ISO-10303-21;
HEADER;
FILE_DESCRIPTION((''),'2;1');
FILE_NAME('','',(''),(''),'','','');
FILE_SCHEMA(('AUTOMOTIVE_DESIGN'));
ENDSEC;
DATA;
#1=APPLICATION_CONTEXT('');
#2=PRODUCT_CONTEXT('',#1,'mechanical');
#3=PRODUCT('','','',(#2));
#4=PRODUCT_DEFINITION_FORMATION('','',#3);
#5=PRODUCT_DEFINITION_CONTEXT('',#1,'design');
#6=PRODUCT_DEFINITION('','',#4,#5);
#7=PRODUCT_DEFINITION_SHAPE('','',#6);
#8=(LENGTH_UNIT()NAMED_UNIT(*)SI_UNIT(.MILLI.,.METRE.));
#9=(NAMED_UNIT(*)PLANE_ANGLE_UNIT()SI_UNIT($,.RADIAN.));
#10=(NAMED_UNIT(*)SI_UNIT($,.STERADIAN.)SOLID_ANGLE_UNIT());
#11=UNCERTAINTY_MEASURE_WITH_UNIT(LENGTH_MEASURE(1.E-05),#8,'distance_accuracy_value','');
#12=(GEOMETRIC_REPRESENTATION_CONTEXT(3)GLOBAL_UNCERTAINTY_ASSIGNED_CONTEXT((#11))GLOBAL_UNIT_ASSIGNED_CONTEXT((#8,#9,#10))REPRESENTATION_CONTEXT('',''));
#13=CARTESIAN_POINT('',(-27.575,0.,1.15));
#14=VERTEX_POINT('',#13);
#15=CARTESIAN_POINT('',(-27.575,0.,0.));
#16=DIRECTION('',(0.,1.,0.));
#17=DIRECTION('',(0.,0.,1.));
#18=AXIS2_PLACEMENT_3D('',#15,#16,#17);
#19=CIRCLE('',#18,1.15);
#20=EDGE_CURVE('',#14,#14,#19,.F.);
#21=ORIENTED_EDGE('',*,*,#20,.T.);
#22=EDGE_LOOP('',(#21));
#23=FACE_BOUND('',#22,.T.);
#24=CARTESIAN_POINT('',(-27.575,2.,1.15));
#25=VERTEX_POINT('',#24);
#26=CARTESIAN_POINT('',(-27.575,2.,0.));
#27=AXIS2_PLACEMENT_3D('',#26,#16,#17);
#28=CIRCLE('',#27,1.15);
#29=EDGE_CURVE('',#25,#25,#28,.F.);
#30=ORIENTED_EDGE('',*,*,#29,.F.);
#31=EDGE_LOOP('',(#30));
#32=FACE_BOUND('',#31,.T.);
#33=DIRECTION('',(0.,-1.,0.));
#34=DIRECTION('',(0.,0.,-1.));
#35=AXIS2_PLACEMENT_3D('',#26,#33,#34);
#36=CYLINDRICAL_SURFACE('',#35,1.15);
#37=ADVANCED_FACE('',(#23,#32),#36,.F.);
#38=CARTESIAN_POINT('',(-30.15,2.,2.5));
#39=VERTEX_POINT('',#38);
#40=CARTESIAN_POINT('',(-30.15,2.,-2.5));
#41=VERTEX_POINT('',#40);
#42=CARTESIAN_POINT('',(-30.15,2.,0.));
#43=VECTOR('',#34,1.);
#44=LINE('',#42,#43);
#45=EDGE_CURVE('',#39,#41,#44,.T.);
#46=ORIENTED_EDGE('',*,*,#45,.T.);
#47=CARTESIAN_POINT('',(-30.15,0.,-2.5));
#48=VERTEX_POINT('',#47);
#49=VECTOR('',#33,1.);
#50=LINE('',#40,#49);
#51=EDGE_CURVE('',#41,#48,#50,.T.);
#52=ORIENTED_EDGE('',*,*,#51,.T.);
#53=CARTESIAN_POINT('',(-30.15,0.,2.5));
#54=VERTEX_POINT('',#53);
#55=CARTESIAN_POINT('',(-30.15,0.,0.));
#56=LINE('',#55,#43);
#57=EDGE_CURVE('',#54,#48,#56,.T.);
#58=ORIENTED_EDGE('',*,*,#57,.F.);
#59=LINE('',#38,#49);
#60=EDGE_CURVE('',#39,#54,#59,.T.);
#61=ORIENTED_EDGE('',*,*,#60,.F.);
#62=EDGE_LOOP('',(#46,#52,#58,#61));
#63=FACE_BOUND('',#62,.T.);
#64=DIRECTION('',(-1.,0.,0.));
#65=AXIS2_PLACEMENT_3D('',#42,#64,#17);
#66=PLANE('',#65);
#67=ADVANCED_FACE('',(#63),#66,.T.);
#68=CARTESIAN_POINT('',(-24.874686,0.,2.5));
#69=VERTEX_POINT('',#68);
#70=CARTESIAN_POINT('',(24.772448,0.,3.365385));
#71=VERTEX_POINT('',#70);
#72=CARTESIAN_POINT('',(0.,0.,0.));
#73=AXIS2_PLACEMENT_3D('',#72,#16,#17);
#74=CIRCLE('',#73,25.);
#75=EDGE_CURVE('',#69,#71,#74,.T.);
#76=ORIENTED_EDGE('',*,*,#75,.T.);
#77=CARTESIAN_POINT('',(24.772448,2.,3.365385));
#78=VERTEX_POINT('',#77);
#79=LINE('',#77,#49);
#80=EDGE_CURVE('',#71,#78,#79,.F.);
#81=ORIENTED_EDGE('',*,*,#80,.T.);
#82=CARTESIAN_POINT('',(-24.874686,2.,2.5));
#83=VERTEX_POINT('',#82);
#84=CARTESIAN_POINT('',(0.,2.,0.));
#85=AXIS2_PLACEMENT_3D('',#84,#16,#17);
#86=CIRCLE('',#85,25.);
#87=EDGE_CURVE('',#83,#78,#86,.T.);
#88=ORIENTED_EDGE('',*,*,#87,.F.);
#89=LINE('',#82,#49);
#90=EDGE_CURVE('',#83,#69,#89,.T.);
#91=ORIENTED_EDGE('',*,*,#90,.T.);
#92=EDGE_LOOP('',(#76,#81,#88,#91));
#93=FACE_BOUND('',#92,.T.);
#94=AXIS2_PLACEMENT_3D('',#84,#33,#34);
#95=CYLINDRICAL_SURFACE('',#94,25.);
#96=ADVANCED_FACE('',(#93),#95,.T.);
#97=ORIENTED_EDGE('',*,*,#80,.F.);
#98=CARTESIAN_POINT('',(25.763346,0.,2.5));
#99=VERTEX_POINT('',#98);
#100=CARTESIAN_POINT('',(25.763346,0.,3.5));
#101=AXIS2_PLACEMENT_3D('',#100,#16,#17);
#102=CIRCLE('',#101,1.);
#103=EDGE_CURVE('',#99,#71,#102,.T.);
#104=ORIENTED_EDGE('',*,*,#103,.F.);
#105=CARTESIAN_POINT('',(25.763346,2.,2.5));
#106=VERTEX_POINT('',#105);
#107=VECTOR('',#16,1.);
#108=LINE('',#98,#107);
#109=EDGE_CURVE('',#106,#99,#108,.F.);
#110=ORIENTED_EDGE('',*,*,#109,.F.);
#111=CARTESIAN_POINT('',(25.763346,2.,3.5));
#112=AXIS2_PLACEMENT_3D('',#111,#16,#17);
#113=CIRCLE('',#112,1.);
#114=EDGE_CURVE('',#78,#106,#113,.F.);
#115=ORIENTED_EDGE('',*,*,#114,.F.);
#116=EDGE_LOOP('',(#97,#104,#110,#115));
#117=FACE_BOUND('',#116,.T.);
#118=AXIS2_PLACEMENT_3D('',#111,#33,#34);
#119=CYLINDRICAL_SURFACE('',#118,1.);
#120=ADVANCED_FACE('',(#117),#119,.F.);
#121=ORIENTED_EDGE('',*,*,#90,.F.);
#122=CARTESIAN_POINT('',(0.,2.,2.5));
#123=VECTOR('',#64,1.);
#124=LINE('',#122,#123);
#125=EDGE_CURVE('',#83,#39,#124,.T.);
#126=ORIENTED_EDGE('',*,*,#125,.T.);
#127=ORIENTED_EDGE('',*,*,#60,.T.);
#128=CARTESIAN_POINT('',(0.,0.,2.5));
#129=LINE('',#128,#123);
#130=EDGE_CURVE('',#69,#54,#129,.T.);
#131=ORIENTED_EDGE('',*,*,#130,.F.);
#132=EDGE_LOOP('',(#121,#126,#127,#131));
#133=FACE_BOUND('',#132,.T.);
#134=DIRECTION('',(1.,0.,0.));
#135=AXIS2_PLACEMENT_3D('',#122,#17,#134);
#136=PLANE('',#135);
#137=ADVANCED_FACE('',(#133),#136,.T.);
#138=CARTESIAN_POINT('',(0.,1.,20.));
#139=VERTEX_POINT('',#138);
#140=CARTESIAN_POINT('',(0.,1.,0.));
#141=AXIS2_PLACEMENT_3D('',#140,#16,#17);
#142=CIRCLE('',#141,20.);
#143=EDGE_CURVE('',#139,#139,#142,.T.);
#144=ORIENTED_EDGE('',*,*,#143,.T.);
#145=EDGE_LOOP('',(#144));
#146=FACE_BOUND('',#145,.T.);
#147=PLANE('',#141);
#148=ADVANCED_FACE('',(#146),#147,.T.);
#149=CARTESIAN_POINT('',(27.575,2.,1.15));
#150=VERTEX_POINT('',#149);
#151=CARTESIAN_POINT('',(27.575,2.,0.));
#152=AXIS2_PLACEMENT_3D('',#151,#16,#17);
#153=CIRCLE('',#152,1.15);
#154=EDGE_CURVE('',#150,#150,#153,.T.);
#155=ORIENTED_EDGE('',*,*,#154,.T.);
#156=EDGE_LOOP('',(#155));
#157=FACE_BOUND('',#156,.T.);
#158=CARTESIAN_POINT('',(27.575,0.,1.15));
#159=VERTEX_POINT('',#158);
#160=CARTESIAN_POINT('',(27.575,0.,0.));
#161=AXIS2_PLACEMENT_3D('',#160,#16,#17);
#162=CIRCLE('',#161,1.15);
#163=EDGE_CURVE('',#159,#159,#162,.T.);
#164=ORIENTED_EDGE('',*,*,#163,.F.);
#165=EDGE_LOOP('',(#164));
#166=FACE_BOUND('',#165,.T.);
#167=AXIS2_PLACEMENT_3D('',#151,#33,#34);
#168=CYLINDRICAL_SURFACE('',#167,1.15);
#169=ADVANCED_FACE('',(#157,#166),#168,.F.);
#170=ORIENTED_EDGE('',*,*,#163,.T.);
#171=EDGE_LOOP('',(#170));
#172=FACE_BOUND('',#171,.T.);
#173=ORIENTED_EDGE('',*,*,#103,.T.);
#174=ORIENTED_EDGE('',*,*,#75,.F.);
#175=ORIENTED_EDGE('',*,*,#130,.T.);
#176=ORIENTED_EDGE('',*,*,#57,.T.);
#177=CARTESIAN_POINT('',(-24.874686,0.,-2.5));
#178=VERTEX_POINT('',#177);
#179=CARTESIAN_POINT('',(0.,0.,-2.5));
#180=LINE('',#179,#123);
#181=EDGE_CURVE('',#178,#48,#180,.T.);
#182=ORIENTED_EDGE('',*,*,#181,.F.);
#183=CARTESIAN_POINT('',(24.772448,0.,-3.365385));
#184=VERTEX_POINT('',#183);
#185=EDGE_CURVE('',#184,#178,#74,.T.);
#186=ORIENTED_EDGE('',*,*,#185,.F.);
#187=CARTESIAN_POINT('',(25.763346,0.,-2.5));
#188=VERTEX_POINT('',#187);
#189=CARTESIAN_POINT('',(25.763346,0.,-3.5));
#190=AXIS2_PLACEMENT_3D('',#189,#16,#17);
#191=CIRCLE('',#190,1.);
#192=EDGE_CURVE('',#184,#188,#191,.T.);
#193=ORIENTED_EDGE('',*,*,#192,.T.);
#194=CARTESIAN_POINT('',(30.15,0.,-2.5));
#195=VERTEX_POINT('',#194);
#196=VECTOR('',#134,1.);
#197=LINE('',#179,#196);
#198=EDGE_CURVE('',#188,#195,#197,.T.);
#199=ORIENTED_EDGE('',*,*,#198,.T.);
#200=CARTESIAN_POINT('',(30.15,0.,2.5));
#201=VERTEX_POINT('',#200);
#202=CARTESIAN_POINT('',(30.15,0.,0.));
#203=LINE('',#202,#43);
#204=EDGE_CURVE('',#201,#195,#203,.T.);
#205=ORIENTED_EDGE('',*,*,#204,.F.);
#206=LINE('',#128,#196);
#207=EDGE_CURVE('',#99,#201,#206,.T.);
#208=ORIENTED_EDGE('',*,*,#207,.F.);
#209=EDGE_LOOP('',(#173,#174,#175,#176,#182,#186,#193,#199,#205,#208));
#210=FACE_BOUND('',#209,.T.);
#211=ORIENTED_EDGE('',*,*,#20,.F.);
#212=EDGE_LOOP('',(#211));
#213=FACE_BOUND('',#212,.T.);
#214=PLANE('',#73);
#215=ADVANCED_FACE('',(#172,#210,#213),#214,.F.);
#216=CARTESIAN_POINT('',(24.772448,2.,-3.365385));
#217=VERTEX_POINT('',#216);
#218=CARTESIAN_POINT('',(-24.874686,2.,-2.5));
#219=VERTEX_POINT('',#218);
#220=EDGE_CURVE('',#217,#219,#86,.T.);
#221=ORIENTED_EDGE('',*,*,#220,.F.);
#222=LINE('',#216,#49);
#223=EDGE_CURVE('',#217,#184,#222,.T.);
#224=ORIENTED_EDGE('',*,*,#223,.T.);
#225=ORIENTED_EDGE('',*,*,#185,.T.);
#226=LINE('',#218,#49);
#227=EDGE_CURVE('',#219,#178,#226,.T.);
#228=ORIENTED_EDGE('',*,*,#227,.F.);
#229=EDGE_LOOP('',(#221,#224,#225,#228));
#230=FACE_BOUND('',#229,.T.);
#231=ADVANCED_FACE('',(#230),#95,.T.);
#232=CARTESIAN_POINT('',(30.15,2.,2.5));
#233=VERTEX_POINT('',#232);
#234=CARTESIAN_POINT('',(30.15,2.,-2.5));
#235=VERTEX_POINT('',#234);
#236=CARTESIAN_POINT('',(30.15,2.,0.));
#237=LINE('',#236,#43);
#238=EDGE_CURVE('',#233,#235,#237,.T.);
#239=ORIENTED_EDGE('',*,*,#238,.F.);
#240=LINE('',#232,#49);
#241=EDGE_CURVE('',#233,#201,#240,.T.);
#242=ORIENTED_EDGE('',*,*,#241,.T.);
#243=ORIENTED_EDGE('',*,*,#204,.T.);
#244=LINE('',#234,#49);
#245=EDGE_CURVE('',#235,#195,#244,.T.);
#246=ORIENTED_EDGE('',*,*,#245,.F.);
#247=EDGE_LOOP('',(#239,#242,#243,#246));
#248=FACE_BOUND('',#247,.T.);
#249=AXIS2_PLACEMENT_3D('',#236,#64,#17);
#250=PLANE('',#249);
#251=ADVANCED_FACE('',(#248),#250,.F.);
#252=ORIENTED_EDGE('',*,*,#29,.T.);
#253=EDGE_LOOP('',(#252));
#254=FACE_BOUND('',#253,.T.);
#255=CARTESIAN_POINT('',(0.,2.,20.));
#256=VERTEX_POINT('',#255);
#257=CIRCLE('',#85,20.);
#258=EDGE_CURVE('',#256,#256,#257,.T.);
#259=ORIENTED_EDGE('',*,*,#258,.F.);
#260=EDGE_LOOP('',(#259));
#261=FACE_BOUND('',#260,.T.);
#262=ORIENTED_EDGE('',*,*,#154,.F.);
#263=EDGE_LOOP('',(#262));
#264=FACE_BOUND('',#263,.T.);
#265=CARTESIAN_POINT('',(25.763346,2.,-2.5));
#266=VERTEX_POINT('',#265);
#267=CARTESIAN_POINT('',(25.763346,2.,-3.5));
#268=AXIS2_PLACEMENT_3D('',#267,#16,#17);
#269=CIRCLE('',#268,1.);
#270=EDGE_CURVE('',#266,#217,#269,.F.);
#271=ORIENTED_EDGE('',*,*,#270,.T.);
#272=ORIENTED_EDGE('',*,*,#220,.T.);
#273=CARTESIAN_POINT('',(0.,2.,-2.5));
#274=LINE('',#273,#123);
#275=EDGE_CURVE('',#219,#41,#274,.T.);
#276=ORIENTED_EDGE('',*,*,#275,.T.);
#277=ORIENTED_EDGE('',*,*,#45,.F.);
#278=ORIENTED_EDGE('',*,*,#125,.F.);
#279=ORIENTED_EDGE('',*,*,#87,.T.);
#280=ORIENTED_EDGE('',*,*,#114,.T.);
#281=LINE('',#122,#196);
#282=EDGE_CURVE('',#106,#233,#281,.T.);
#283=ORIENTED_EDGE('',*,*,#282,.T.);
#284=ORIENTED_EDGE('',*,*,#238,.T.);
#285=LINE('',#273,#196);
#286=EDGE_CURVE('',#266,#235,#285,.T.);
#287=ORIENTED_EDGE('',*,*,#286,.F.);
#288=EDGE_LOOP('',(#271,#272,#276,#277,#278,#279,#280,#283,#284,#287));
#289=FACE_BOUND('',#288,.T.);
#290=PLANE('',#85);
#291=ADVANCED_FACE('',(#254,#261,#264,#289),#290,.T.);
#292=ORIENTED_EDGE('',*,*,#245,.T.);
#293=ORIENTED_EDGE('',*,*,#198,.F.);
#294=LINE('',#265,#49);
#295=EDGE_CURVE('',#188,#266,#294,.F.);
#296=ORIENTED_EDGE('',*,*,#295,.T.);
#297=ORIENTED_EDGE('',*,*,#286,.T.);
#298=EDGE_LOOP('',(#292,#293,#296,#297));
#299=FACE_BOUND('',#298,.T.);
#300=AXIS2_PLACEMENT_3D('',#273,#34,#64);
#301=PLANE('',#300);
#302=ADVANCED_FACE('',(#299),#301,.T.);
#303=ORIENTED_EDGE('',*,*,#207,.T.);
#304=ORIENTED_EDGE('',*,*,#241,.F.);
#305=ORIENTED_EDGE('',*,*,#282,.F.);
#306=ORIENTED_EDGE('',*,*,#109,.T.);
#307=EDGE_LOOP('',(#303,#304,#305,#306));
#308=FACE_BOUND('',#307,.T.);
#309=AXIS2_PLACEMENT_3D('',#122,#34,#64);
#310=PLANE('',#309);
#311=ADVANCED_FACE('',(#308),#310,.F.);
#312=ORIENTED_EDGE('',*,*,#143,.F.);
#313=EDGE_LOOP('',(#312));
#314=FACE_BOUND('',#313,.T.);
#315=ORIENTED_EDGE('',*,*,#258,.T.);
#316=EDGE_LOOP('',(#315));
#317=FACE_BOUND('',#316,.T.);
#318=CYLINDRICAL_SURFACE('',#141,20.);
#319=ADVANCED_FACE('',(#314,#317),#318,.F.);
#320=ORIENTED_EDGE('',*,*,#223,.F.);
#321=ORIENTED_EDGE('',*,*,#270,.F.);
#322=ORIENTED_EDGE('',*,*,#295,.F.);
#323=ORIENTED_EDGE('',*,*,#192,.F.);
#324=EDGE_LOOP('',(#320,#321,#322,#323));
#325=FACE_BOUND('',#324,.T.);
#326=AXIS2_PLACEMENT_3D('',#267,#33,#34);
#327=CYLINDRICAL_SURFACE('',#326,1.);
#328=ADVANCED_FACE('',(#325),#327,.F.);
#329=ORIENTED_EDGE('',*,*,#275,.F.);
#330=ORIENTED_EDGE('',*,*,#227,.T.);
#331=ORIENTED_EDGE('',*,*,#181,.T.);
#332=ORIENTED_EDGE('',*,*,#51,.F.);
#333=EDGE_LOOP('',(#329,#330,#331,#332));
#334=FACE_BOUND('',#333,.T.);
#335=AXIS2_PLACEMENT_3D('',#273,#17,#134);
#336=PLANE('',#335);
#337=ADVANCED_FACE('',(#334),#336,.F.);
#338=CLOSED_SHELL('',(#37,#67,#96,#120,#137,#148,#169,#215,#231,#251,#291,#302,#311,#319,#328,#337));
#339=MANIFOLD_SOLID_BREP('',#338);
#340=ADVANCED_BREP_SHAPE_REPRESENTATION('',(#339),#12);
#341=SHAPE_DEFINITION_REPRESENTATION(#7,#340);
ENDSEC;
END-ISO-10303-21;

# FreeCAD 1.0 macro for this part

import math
import FreeCAD as App
import Part
import Sketcher
from FreeCAD import Vector
Q = App.Units.Quantity


def edges_at(feature, points):
    """Names of the edges that pass closest to the given points."""
    edges = feature.Shape.Edges
    near = lambda p: min(range(len(edges)), key=lambda i: edges[i].distToShape(Part.Vertex(*p))[0])
    return sorted({f"Edge{near(p) + 1}" for p in points})

doc = App.newDocument("Part")
params = doc.addObject("Spreadsheet::Sheet", "Params")
for row, (alias, value) in enumerate([
    ("sketch1_radius", "25 mm"),
    ("sketch1_diameter", "2.3 mm"),
    ("sketch1_height", "5 mm"),
    ("pad1_length", "2 mm"),
    ("fillet_radius", "1 mm"),
    ("sketch2_diameter", "40 mm"),
    ("pocket1_length", "1 mm"),
], start=1):
    params.set(f"A{row}", alias)
    params.set(f"B{row}", "=" + value)
    params.setAlias(f"B{row}", alias)

body = doc.addObject("PartDesign::Body", "Body")

sketch1 = body.newObject("Sketcher::SketchObject", "Sketch")
sketch1.AttachmentSupport = (doc.getObject("XZ_Plane"), [""])
sketch1.MapMode = "FlatFace"
sketch1.addGeometry(Part.LineSegment(Vector(24.9, 2.5, 0), Vector(30.1, 2.5, 0)), False)
sketch1.addGeometry(Part.LineSegment(Vector(30.1, 2.5, 0), Vector(30.1, -2.5, 0)), False)
sketch1.addGeometry(Part.LineSegment(Vector(30.1, -2.5, 0), Vector(24.9, -2.5, 0)), False)
sketch1.addGeometry(Part.ArcOfCircle(Part.Circle(Vector(0, 0, 0), Vector(0, 0, 1), 25), math.radians(-174), math.radians(-6)), False)
sketch1.addGeometry(Part.LineSegment(Vector(-24.9, -2.5, 0), Vector(-30.1, -2.5, 0)), False)
sketch1.addGeometry(Part.LineSegment(Vector(-30.1, -2.5, 0), Vector(-30.1, 2.5, 0)), False)
sketch1.addGeometry(Part.LineSegment(Vector(-30.1, 2.5, 0), Vector(-24.9, 2.5, 0)), False)
sketch1.addGeometry(Part.ArcOfCircle(Part.Circle(Vector(0, 0, 0), Vector(0, 0, 1), 25), math.radians(6), math.radians(174)), False)
sketch1.addGeometry(Part.Circle(Vector(27.6, 0, 0), Vector(0, 0, 1), 1.1), False)
sketch1.addGeometry(Part.Circle(Vector(-27.6, 0, 0), Vector(0, 0, 1), 1.1), False)
sketch1.addConstraint(Sketcher.Constraint("Coincident", 0, 2, 1, 1))
sketch1.addConstraint(Sketcher.Constraint("Coincident", 1, 2, 2, 1))
sketch1.addConstraint(Sketcher.Constraint("Coincident", 2, 2, 3, 2))
sketch1.addConstraint(Sketcher.Constraint("Coincident", 3, 1, 4, 1))
sketch1.addConstraint(Sketcher.Constraint("Coincident", 4, 2, 5, 1))
sketch1.addConstraint(Sketcher.Constraint("Coincident", 5, 2, 6, 1))
sketch1.addConstraint(Sketcher.Constraint("Coincident", 6, 2, 7, 2))
sketch1.addConstraint(Sketcher.Constraint("Coincident", 7, 1, 0, 1))
sketch1.addConstraint(Sketcher.Constraint("Horizontal", 0))
sketch1.addConstraint(Sketcher.Constraint("Vertical", 1))
sketch1.addConstraint(Sketcher.Constraint("Horizontal", 2))
sketch1.addConstraint(Sketcher.Constraint("Horizontal", 4))
sketch1.addConstraint(Sketcher.Constraint("Vertical", 5))
sketch1.addConstraint(Sketcher.Constraint("Horizontal", 6))
sketch1.addConstraint(Sketcher.Constraint("Coincident", 3, 3, -1, 1))
sketch1.addConstraint(Sketcher.Constraint("Coincident", 7, 3, -1, 1))
sketch1.addConstraint(Sketcher.Constraint("Equal", 3, 7))
sketch1.addConstraint(Sketcher.Constraint("Equal", 8, 9))
sketch1.addConstraint(Sketcher.Constraint("Symmetric", 8, 3, 9, 3, -1, 1))
sketch1.addConstraint(Sketcher.Constraint("Symmetric", 0, 2, 4, 2, -1, 1))
sketch1.addConstraint(Sketcher.Constraint("PointOnObject", 8, 3, -1))
sketch1.addConstraint(Sketcher.Constraint("Horizontal", 2, 2, 3, 1))
sketch1.addConstraint(Sketcher.Constraint("Horizontal", 0, 2, 5, 2))
sketch1.addConstraint(Sketcher.Constraint("Radius", 3, Q("25 mm")))
sketch1.addConstraint(Sketcher.Constraint("Diameter", 8, Q("2.3 mm")))
sketch1.addConstraint(Sketcher.Constraint("DistanceY", 1, 2, 1, 1, Q("5 mm")))
sketch1.addConstraint(Sketcher.Constraint("DistanceX", -1, 1, 0, 2, Q("30.15 mm")))
sketch1.addConstraint(Sketcher.Constraint("DistanceX", 9, 3, 8, 3, Q("55.15 mm")))
sketch1.setExpression("Constraints[23]", "Params.sketch1_radius")
sketch1.setExpression("Constraints[24]", "Params.sketch1_diameter")
sketch1.setExpression("Constraints[25]", "Params.sketch1_height")
pad1 = body.newObject("PartDesign::Pad", "Pad")
pad1.Profile = sketch1
pad1.setExpression("Length", "Params.pad1_length")
pad1.Reversed = True
doc.recompute()

fillet = body.newObject("PartDesign::Fillet", "Fillet")
fillet.Base = (pad1, edges_at(pad1, [(24.875, 1, -2.5), (24.875, 1, 2.5)]))
fillet.setExpression("Radius", "Params.fillet_radius")

sketch2 = body.newObject("Sketcher::SketchObject", "Sketch001")
sketch2.AttachmentSupport = (doc.getObject("XZ_Plane"), [""])
sketch2.MapMode = "FlatFace"
sketch2.AttachmentOffset = App.Placement(Vector(0, 0, -2), App.Rotation())
sketch2.addGeometry(Part.Circle(Vector(0, 0, 0), Vector(0, 0, 1), 20), False)
sketch2.addConstraint(Sketcher.Constraint("Coincident", 0, 3, -1, 1))
sketch2.addConstraint(Sketcher.Constraint("Diameter", 0, Q("40 mm")))
sketch2.setExpression("Constraints[1]", "Params.sketch2_diameter")
pocket1 = body.newObject("PartDesign::Pocket", "Pocket")
pocket1.Profile = sketch2
pocket1.setExpression("Length", "Params.pocket1_length")
pocket1.Reversed = True

doc.recompute()
